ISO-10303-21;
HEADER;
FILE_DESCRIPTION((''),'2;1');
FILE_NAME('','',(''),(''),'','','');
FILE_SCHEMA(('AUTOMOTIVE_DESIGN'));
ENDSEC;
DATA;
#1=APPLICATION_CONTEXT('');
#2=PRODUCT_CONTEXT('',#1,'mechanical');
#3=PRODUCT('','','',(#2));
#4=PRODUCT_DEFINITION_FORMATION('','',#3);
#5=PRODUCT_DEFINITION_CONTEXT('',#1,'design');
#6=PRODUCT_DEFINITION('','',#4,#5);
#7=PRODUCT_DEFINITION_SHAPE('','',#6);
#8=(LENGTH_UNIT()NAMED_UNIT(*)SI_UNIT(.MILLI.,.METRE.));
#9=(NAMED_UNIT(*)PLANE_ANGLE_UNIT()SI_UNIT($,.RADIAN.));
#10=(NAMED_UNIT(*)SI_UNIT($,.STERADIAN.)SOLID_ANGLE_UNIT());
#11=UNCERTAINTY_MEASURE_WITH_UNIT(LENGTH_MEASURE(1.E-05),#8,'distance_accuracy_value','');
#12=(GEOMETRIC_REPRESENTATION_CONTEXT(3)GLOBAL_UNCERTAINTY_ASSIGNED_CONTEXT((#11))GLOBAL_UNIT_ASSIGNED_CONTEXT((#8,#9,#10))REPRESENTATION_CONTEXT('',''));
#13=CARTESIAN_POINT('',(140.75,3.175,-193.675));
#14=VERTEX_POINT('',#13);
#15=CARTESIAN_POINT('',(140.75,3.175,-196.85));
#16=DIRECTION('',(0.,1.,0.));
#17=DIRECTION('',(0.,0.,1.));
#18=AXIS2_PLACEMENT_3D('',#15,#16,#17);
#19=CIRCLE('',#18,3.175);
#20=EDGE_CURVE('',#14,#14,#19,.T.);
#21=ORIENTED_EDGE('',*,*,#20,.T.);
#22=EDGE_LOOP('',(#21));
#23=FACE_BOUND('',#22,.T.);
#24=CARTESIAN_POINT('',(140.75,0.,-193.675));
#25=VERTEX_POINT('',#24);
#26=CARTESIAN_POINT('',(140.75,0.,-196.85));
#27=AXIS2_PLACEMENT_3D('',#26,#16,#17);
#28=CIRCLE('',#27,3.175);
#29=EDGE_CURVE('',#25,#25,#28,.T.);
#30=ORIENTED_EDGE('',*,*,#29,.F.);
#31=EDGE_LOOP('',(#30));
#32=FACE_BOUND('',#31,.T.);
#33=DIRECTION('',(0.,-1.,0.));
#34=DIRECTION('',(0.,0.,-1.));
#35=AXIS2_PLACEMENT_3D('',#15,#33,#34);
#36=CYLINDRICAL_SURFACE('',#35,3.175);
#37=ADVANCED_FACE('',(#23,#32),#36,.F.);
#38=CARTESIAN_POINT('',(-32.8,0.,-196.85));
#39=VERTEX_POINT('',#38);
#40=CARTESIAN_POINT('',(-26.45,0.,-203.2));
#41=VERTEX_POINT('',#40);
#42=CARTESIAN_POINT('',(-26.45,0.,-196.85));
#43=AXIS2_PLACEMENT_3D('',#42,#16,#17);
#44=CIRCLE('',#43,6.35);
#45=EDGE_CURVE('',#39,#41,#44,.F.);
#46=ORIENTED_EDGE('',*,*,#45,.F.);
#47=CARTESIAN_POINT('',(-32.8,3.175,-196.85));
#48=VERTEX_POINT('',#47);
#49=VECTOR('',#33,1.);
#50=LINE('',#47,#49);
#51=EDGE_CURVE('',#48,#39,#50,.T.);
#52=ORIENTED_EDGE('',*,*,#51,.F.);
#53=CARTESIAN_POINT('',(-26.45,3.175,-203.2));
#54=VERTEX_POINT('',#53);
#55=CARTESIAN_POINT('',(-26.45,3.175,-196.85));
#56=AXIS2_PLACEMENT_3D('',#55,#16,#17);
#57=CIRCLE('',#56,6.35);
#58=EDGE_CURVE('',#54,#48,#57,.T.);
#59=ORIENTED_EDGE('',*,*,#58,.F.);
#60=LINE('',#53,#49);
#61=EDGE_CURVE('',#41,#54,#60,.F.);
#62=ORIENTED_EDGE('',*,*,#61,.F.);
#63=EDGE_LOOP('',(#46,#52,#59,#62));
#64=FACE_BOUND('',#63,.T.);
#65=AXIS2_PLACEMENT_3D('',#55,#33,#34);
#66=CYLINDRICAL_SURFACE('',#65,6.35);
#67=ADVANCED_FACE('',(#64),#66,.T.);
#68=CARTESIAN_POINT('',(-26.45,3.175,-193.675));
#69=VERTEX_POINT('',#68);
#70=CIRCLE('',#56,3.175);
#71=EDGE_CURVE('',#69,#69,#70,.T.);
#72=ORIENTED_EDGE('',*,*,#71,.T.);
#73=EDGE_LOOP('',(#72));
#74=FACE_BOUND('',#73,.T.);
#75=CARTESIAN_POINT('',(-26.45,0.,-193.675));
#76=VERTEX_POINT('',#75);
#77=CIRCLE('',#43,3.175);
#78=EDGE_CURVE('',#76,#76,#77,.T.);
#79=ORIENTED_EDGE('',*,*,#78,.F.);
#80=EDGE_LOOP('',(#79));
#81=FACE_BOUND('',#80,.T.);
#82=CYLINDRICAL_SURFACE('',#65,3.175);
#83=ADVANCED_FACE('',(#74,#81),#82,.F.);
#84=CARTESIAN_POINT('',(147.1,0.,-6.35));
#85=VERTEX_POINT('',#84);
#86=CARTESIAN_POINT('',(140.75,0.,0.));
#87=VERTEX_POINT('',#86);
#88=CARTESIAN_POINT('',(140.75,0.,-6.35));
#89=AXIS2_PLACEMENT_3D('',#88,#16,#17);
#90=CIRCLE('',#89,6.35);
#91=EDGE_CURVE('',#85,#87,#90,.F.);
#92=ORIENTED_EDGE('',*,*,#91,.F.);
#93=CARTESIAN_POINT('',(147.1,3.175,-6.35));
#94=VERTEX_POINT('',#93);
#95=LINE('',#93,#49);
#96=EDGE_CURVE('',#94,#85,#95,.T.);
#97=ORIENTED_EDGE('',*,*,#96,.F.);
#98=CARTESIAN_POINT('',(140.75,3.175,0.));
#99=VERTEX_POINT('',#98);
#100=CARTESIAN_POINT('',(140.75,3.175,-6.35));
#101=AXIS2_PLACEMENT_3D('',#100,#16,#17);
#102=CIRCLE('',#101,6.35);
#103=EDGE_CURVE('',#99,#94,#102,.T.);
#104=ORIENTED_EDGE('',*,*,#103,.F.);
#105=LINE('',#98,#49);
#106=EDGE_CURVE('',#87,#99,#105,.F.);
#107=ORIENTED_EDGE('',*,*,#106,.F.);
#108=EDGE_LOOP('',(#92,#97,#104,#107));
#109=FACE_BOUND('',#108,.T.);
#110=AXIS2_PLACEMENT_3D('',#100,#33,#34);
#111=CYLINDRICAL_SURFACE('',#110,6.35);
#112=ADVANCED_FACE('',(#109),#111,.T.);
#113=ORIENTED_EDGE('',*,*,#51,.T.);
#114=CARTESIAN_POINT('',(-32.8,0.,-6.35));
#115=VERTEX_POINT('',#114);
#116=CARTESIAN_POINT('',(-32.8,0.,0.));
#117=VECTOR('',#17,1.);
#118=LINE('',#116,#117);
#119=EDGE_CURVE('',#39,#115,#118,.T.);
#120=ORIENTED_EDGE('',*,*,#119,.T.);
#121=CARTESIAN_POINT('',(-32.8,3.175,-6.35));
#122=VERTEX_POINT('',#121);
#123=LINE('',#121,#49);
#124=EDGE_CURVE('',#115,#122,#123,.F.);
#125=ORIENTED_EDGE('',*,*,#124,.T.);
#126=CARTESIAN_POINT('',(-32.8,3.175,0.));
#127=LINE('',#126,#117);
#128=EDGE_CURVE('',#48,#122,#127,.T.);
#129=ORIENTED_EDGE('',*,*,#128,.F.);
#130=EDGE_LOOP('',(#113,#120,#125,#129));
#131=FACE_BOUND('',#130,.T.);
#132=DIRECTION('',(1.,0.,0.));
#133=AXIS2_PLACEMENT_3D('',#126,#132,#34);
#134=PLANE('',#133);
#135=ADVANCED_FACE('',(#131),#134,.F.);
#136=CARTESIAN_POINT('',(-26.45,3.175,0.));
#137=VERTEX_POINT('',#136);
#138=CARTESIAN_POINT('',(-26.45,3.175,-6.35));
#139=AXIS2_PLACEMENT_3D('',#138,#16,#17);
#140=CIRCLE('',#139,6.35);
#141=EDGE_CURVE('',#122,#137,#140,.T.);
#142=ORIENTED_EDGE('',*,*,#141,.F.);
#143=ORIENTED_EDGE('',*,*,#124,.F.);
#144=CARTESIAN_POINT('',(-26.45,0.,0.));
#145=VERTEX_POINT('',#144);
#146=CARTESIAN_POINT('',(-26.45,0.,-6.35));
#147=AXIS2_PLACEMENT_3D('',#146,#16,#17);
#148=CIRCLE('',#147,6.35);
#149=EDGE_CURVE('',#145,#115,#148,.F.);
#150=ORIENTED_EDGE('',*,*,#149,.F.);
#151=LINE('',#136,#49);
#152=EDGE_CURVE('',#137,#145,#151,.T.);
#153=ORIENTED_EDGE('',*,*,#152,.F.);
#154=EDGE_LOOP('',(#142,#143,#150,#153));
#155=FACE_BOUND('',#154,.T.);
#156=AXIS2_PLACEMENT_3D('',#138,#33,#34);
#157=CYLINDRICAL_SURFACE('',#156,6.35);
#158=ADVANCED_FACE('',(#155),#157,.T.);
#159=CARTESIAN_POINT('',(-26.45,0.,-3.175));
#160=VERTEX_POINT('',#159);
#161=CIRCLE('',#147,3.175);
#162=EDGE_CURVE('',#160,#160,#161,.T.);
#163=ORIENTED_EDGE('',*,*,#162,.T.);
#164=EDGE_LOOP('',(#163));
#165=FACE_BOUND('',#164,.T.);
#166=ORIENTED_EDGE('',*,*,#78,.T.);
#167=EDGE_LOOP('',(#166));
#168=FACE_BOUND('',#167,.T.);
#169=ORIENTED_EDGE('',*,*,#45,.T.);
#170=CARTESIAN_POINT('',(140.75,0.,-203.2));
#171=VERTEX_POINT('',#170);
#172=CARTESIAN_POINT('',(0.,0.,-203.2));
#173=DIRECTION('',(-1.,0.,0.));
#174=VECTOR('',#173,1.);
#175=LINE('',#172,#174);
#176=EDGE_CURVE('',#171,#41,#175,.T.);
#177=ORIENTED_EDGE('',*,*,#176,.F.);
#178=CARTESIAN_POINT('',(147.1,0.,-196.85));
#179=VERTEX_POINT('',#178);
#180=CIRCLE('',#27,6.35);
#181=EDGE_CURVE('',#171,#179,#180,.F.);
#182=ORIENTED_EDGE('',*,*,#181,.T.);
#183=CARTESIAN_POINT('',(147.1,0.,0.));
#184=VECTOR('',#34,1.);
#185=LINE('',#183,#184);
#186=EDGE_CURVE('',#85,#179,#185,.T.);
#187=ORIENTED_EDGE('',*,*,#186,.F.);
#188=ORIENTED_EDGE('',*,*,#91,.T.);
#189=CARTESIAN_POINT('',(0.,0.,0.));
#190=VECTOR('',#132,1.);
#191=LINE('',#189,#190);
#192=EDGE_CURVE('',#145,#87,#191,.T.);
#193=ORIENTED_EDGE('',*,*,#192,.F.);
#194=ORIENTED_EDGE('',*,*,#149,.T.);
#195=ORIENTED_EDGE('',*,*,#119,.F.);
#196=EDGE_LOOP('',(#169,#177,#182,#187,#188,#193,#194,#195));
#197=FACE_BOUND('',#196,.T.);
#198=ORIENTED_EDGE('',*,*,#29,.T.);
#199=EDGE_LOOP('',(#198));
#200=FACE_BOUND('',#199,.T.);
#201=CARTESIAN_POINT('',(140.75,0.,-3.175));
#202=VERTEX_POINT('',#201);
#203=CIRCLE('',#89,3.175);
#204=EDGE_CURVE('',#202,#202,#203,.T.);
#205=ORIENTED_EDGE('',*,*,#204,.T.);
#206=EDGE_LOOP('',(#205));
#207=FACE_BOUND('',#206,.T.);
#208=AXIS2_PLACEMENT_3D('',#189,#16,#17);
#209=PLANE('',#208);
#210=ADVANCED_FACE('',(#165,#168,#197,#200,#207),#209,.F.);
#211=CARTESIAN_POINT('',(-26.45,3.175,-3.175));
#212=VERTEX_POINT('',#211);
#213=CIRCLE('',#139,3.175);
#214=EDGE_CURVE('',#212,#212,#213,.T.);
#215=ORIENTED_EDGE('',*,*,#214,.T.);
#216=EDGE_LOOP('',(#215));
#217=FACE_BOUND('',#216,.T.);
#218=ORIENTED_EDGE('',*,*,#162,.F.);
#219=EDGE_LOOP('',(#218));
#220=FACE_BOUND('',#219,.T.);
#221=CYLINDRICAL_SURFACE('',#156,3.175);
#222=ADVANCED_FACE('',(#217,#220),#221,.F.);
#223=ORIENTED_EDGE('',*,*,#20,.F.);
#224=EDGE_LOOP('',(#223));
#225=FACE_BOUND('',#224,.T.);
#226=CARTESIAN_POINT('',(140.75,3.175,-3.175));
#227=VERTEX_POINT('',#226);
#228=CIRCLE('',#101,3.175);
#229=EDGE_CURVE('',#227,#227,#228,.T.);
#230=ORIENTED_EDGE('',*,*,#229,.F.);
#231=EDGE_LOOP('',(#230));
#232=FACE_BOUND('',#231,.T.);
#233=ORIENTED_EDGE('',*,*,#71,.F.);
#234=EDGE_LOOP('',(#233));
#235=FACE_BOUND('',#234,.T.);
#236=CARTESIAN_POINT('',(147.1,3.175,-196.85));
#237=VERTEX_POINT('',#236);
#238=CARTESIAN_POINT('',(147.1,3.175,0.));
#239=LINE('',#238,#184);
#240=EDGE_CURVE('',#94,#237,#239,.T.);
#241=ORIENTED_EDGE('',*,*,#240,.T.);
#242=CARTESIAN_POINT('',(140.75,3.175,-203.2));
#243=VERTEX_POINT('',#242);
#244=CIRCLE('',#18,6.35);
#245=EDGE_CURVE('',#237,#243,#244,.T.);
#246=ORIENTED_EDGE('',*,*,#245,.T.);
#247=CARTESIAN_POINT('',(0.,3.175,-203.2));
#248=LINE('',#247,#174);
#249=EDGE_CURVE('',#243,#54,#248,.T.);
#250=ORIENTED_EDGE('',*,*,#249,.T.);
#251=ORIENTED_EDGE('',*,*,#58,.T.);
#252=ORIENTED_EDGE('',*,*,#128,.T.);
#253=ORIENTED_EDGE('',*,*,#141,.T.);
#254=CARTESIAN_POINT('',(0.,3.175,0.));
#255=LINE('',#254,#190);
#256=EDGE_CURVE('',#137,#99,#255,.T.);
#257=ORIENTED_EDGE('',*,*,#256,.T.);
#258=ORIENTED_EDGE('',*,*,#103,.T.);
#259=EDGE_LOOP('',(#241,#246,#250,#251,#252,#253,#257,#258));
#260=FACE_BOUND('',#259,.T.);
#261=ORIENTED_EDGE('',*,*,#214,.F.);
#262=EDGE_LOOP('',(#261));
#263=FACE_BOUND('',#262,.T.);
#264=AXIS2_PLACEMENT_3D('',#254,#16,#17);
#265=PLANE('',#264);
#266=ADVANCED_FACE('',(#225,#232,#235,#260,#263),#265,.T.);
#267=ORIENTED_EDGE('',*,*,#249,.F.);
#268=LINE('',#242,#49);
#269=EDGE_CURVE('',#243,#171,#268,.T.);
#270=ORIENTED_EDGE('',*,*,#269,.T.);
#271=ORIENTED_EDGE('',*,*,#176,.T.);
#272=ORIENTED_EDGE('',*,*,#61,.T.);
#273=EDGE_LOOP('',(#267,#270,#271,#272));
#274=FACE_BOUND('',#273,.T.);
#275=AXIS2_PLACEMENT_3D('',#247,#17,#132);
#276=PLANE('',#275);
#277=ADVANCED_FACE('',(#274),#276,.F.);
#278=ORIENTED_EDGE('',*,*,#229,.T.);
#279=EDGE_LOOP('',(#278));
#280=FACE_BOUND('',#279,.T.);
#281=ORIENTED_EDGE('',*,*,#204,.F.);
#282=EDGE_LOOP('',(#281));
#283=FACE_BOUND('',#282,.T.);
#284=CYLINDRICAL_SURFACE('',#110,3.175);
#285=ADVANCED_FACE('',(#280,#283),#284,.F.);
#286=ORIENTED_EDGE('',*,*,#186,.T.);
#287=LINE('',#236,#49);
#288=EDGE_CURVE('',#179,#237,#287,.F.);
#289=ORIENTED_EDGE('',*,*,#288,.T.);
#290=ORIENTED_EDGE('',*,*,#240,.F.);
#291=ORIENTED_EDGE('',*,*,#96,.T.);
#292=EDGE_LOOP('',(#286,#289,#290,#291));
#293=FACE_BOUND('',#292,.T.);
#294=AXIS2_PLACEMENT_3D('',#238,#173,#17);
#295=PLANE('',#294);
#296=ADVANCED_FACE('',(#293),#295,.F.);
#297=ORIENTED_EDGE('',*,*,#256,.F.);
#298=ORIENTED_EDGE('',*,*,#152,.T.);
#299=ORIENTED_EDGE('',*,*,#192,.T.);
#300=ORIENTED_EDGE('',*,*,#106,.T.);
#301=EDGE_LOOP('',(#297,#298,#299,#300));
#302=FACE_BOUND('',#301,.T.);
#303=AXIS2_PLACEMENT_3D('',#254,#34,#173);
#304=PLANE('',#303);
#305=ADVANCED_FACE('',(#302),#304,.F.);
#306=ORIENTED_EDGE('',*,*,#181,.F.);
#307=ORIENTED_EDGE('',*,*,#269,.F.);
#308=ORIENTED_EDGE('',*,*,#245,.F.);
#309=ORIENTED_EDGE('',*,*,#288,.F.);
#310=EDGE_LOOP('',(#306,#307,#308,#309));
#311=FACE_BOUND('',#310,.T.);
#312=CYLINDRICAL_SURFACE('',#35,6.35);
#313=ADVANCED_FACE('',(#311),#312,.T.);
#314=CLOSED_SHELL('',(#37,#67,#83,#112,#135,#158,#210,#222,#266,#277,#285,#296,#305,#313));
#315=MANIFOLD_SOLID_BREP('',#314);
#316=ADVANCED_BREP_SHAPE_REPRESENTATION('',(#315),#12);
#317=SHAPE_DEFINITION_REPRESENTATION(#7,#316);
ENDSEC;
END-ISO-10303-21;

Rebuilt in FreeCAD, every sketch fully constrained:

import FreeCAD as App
import Part
import Sketcher

V = App.Vector
Q = App.Units.Quantity


def edges_at(feature, points):
    """Names of the edges that pass closest to the given points."""
    edges = feature.Shape.Edges
    near = lambda p: min(range(len(edges)), key=lambda i: edges[i].distToShape(Part.Vertex(*p))[0])
    return sorted({f"Edge{near(p) + 1}" for p in points})

doc = App.newDocument("Part")
body = doc.addObject("PartDesign::Body", "Body")

# Sketch on XZ plane
sketch1 = doc.addObject("Sketcher::SketchObject", "Sketch")
body.addObject(sketch1)
sketch1.AttachmentSupport = (doc.XZ_Plane, [""])
sketch1.MapMode = "FlatFace"
sketch1.addGeometry([
    Part.LineSegment(V(-32.8, -203.2, 0), V(-32.8, 0, 0)),  # 0
    Part.LineSegment(V(-32.8, 0, 0), V(147.1, 0, 0)),  # 1
    Part.LineSegment(V(147.1, 0, 0), V(147.1, -203.2, 0)),  # 2
    Part.LineSegment(V(147.1, -203.2, 0), V(-32.8, -203.2, 0)),  # 3
    Part.Circle(V(-26.45, -6.35, 0), V(0, 0, 1), 3.175),  # 4
    Part.Circle(V(140.75, -6.35, 0), V(0, 0, 1), 3.175),  # 5
    Part.Circle(V(-26.45, -196.85, 0), V(0, 0, 1), 3.175),  # 6
    Part.Circle(V(140.75, -196.85, 0), V(0, 0, 1), 3.175),  # 7
], False)
sketch1.addConstraint([
    Sketcher.Constraint("Coincident", 0, 2, 1, 1),
    Sketcher.Constraint("Coincident", 1, 2, 2, 1),
    Sketcher.Constraint("Coincident", 2, 2, 3, 1),
    Sketcher.Constraint("Coincident", 3, 2, 0, 1),
    Sketcher.Constraint("Vertical", 0),
    Sketcher.Constraint("Horizontal", 1),
    Sketcher.Constraint("Vertical", 2),
    Sketcher.Constraint("Horizontal", 3),
    Sketcher.Constraint("Equal", 4, 5),
    Sketcher.Constraint("Equal", 5, 6),
    Sketcher.Constraint("Equal", 6, 7),
    Sketcher.Constraint("PointOnObject", 0, 2, -1),
    Sketcher.Constraint("Horizontal", 4, 3, 5, 3),
    Sketcher.Constraint("Horizontal", 6, 3, 7, 3),
    Sketcher.Constraint("Vertical", 4, 3, 6, 3),
    Sketcher.Constraint("Vertical", 5, 3, 7, 3),
    Sketcher.Constraint("Diameter", 4, Q("0.25 in")),
    Sketcher.Constraint("DistanceY", 0, 1, 0, 2, Q("8 in")),
    Sketcher.Constraint("DistanceY", 6, 3, 4, 3, Q("7.5 in")),
    Sketcher.Constraint("DistanceY", 4, 3, -1, 1, Q("0.25 in")),
    Sketcher.Constraint("DistanceX", 0, 2, 4, 3, Q("0.25 in")),
    Sketcher.Constraint("DistanceX", 5, 3, 1, 2, Q("0.25 in")),
    Sketcher.Constraint("DistanceX", 1, 1, 1, 2, 179.9),
    Sketcher.Constraint("DistanceX", 4, 3, -1, 1, 26.45),
])
pad1 = doc.addObject("PartDesign::Pad", "Pad")
body.addObject(pad1)
pad1.Profile = sketch1
pad1.Length = Q("0.125 in")
pad1.Reversed = True
doc.recompute()

fillet = doc.addObject("PartDesign::Fillet", "Fillet")
body.addObject(fillet)
fillet.Base = (pad1, edges_at(pad1, [
    (-32.8, 1.587, -203.2),
    (147.1, 1.587, -203.2),
    (147.1, 1.587, 0),
    (-32.8, 1.587, 0),
]))
fillet.Radius = Q("0.25 in")

doc.recompute()
